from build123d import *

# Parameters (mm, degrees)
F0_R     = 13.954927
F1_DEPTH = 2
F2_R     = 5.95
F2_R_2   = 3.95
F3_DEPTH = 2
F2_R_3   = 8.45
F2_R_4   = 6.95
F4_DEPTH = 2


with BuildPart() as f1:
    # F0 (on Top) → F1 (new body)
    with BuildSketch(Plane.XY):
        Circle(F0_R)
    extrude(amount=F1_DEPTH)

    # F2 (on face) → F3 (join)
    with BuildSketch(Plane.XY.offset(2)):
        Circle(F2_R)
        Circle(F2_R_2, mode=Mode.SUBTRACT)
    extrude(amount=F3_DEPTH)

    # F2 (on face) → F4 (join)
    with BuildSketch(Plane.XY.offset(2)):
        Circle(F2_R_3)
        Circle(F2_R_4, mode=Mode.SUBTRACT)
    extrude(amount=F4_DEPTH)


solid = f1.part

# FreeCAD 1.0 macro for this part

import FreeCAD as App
import Part
import Sketcher
Q = App.Units.Quantity

doc = App.newDocument("Part")
body = doc.addObject("PartDesign::Body", "Body")

# Sketch on XY plane
sketch1 = body.newObject("Sketcher::SketchObject", "Sketch")
sketch1.AttachmentSupport = (doc.getObject("XY_Plane"), [""])
sketch1.MapMode = "FlatFace"
sketch1.addGeometry(Part.Circle(App.Vector(0, 0, 0), App.Vector(0, 0, 1), 14), False)
sketch1.addConstraint([
    Sketcher.Constraint("Coincident", 0, 3, -1, 1),
    Sketcher.Constraint("Diameter", 0, Q("27.909854 mm")),
])
pad1 = body.newObject("PartDesign::Pad", "Pad")
pad1.Profile = sketch1
pad1.Length = 2

# Sketch on XY plane
sketch2 = body.newObject("Sketcher::SketchObject", "Sketch001")
sketch2.AttachmentSupport = (doc.getObject("XY_Plane"), [""])
sketch2.MapMode = "FlatFace"
sketch2.AttachmentOffset = App.Placement(App.Vector(0, 0, 2), App.Rotation())
sketch2.addGeometry([
    Part.Circle(App.Vector(0, 0, 0), App.Vector(0, 0, 1), 6),
    Part.Circle(App.Vector(0, 0, 0), App.Vector(0, 0, 1), 4),
], False)
sketch2.addConstraint([
    Sketcher.Constraint("Coincident", 0, 3, -1, 1),
    Sketcher.Constraint("Coincident", 1, 3, -1, 1),
    Sketcher.Constraint("Diameter", 0, Q("11.9 mm")),
    Sketcher.Constraint("Diameter", 1, Q("7.9 mm")),
])
pad2 = body.newObject("PartDesign::Pad", "Pad001")
pad2.Profile = sketch2
pad2.Length = 2

# Sketch on XY plane
sketch3 = body.newObject("Sketcher::SketchObject", "Sketch002")
sketch3.AttachmentSupport = (doc.getObject("XY_Plane"), [""])
sketch3.MapMode = "FlatFace"
sketch3.AttachmentOffset = App.Placement(App.Vector(0, 0, 2), App.Rotation())
sketch3.addGeometry([
    Part.Circle(App.Vector(0, 0, 0), App.Vector(0, 0, 1), 8),
    Part.Circle(App.Vector(0, 0, 0), App.Vector(0, 0, 1), 7),
], False)
sketch3.addConstraint([
    Sketcher.Constraint("Coincident", 0, 3, -1, 1),
    Sketcher.Constraint("Coincident", 1, 3, -1, 1),
    Sketcher.Constraint("Diameter", 0, Q("16.9 mm")),
    Sketcher.Constraint("Diameter", 1, Q("13.9 mm")),
])
pad3 = body.newObject("PartDesign::Pad", "Pad002")
pad3.Profile = sketch3
pad3.Length = 2

doc.recompute()
